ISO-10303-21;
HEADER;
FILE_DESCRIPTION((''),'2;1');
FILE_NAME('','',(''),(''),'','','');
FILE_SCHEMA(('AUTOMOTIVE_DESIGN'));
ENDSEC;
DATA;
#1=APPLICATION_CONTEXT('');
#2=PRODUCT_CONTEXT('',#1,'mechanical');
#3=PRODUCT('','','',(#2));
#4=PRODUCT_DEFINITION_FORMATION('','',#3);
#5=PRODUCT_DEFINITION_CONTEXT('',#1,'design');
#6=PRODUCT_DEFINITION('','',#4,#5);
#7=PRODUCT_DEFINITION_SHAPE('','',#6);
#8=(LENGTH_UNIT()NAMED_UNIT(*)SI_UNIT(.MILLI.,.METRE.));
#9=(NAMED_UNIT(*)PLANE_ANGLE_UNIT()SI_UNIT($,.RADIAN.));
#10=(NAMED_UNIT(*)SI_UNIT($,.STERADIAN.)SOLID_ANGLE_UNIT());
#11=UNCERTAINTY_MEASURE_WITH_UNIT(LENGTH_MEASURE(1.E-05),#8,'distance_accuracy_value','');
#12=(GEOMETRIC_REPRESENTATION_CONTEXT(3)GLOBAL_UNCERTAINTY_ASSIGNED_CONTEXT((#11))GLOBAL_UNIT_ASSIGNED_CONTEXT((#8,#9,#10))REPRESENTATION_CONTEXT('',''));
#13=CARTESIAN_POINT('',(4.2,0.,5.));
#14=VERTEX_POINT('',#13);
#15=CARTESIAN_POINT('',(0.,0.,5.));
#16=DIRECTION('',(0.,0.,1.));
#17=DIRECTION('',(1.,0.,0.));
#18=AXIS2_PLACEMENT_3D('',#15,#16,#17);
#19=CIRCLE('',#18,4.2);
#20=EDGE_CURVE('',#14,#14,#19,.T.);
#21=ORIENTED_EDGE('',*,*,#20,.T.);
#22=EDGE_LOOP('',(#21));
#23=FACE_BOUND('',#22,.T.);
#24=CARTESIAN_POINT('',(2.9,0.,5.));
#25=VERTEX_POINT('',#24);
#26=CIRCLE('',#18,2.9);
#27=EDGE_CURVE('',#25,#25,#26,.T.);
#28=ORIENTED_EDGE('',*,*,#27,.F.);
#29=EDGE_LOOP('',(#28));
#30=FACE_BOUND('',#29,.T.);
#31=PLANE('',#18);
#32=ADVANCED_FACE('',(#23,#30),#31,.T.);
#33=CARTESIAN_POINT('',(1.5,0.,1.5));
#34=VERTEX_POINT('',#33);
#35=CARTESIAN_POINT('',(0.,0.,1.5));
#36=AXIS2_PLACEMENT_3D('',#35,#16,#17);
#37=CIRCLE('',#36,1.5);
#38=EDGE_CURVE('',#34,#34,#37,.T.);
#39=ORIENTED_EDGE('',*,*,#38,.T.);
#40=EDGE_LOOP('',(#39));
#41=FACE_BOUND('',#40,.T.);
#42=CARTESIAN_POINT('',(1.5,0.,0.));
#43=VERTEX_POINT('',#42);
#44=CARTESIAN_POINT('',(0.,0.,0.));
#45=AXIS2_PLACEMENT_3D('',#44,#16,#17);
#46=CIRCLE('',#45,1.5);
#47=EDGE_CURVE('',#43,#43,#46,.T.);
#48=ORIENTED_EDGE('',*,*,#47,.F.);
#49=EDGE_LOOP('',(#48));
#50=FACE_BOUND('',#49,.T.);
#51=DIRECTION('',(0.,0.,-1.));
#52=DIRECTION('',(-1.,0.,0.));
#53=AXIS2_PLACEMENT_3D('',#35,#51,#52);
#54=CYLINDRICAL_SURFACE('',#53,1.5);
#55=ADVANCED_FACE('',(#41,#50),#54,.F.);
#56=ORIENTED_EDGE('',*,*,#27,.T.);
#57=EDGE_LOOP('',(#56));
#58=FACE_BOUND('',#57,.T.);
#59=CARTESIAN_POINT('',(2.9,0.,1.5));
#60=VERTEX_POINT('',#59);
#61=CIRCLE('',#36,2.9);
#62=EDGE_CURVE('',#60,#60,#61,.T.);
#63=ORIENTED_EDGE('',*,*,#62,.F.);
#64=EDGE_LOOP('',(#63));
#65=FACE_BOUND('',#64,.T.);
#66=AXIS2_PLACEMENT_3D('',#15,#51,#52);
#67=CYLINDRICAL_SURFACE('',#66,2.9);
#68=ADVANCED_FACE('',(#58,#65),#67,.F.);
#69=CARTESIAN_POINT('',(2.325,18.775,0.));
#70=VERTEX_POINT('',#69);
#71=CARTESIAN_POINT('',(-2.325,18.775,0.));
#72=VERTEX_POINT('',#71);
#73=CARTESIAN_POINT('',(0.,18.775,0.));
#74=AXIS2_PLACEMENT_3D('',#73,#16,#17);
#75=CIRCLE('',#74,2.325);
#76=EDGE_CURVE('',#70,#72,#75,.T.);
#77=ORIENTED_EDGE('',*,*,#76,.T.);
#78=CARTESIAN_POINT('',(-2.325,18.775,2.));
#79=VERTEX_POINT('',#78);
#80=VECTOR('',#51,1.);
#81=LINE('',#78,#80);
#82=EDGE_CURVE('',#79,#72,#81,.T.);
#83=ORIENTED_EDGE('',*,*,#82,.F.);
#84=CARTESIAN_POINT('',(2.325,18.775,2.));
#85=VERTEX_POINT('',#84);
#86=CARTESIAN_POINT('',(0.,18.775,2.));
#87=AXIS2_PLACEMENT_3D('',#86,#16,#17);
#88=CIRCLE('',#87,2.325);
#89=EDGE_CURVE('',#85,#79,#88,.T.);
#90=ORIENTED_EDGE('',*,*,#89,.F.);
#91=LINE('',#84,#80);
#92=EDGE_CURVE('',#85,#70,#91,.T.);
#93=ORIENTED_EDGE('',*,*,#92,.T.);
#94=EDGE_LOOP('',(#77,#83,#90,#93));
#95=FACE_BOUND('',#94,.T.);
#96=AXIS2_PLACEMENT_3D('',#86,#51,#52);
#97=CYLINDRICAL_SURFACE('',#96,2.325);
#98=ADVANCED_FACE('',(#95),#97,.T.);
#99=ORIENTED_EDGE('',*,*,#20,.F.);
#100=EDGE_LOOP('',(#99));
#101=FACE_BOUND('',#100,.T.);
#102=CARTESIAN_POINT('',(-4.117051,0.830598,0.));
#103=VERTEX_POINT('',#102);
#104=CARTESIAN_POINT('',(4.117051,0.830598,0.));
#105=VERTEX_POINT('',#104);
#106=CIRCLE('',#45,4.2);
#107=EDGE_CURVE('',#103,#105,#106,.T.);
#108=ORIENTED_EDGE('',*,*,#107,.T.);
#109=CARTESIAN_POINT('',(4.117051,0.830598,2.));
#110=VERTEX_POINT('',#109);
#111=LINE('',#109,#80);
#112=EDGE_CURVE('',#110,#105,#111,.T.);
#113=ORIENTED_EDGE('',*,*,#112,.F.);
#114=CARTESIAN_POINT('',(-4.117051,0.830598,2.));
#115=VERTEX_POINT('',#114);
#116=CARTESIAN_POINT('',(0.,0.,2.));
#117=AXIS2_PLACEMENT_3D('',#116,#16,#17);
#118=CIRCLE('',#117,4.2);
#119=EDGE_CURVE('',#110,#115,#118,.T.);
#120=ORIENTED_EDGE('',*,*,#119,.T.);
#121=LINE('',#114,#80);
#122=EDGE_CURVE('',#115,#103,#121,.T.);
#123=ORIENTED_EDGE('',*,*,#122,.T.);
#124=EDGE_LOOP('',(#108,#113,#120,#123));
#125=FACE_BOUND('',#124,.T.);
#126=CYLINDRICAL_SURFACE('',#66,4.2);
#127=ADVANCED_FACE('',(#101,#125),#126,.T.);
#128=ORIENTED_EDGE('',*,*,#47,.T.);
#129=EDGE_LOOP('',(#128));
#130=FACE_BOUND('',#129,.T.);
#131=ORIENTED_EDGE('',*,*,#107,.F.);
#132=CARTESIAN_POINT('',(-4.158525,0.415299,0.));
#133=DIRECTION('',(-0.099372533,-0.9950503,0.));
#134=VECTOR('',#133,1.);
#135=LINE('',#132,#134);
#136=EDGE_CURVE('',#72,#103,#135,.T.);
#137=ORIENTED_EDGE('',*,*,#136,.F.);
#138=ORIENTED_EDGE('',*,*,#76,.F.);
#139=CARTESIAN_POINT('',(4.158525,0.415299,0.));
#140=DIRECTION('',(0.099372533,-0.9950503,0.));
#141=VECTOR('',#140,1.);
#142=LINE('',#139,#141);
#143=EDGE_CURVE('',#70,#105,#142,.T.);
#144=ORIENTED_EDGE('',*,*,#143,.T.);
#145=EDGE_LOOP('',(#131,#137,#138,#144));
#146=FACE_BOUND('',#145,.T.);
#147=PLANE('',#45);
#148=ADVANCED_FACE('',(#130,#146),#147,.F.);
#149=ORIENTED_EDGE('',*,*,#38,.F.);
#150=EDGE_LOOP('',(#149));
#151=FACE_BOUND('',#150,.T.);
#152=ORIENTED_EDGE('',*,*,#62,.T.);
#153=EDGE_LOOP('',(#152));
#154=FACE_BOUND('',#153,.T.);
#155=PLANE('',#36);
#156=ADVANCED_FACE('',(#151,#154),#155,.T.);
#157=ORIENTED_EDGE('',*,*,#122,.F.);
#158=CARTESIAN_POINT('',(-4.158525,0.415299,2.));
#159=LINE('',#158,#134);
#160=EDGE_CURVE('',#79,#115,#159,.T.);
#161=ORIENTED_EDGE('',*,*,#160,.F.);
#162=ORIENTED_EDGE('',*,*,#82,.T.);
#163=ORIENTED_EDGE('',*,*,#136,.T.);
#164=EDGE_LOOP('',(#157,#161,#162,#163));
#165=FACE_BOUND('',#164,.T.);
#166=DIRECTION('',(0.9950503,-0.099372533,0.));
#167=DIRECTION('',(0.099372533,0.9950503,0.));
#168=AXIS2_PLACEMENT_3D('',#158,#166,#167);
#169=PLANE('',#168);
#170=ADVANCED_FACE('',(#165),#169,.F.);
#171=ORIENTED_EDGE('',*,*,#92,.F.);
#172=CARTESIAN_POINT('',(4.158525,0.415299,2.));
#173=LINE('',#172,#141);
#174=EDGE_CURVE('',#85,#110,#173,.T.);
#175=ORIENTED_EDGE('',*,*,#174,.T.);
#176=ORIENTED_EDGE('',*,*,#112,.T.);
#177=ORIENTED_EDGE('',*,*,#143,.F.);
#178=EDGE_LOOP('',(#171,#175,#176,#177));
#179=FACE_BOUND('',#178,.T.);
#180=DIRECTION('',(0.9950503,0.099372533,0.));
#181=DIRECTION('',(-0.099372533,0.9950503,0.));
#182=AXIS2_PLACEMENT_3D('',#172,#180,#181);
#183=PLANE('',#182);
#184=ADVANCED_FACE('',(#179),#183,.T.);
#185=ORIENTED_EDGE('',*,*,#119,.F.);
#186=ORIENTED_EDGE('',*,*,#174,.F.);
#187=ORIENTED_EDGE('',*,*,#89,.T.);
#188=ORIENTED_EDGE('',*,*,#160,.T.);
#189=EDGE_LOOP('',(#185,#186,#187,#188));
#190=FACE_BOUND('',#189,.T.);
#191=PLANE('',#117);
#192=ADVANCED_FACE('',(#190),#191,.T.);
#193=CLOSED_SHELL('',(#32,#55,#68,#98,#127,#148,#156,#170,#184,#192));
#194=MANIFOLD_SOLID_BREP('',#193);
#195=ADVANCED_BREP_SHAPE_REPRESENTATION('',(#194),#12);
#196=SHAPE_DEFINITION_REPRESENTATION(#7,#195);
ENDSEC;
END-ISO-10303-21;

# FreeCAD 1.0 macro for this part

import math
import FreeCAD as App
import Part
import Sketcher
Q = App.Units.Quantity

doc = App.newDocument("Part")
params = doc.addObject("Spreadsheet::Sheet", "Params")
for row, (alias, value) in enumerate([
    ("sketch1_radius", "4.2 mm"),
    ("pad1_length", "2 mm"),
    ("sketch2_diameter", "8.4 mm"),
    ("sketch2_diameter2", "5.8 mm"),
    ("pad2_length", "5 mm"),
    ("sketch3_diameter", "3 mm"),
    ("sketch3_diameter2", "5.8 mm"),
    ("pad3_length", "1.5 mm"),
], start=1):
    params.set(f"A{row}", alias)
    params.set(f"B{row}", "=" + value)
    params.setAlias(f"B{row}", alias)

body = doc.addObject("PartDesign::Body", "Body")

sketch1 = doc.addObject("Sketcher::SketchObject", "Sketch")
body.addObject(sketch1)
sketch1.AttachmentSupport = (doc.XY_Plane, [""])
sketch1.MapMode = "FlatFace"
sketch1.addGeometry([
    Part.LineSegment(App.Vector(4.1, 0.8, 0), App.Vector(2.3, 18.8, 0)),
    Part.ArcOfCircle(Part.Circle(App.Vector(0, 18.8, 0), App.Vector(0, 0, 1), 2.3), math.radians(0), math.radians(180)),
    Part.LineSegment(App.Vector(-2.3, 18.8, 0), App.Vector(-4.1, 0.8, 0)),
    Part.ArcOfCircle(Part.Circle(App.Vector(0, 0, 0), App.Vector(0, 0, 1), 4.2), math.radians(11), math.radians(169)),
], False)
sketch1.addConstraint([
    Sketcher.Constraint("Coincident", 0, 2, 1, 1),
    Sketcher.Constraint("Coincident", 1, 2, 2, 1),
    Sketcher.Constraint("Coincident", 2, 2, 3, 2),
    Sketcher.Constraint("Coincident", 3, 1, 0, 1),
    Sketcher.Constraint("Coincident", 3, 3, -1, 1),
    Sketcher.Constraint("Symmetric", 0, 2, 1, 2, -2),
    Sketcher.Constraint("Horizontal", 1, 3, 0, 2),
    Sketcher.Constraint("Horizontal", 2, 2, 3, 1),
    Sketcher.Constraint("Radius", 3, Q("4.2 mm")),
    Sketcher.Constraint("Radius", 1, Q("2.325 mm")),
    Sketcher.Constraint("DistanceY", -1, 1, 1, 3, Q("18.775 mm")),
    Sketcher.Constraint("DistanceX", 2, 2, 3, 1, Q("8.234102 mm")),
])
sketch1.setExpression("Constraints[8]", "Params.sketch1_radius")
pad1 = doc.addObject("PartDesign::Pad", "Pad")
body.addObject(pad1)
pad1.Profile = sketch1
pad1.setExpression("Length", "Params.pad1_length")

sketch2 = doc.addObject("Sketcher::SketchObject", "Sketch001")
body.addObject(sketch2)
sketch2.AttachmentSupport = (doc.XY_Plane, [""])
sketch2.MapMode = "FlatFace"
sketch2.addGeometry([
    Part.Circle(App.Vector(0, 0, 0), App.Vector(0, 0, 1), 4.2),
    Part.Circle(App.Vector(0, 0, 0), App.Vector(0, 0, 1), 2.9),
], False)
sketch2.addConstraint([
    Sketcher.Constraint("Coincident", 0, 3, -1, 1),
    Sketcher.Constraint("Coincident", 1, 3, -1, 1),
    Sketcher.Constraint("Diameter", 0, Q("8.4 mm")),
    Sketcher.Constraint("Diameter", 1, Q("5.8 mm")),
])
sketch2.setExpression("Constraints[2]", "Params.sketch2_diameter")
sketch2.setExpression("Constraints[3]", "Params.sketch2_diameter2")
pad2 = doc.addObject("PartDesign::Pad", "Pad001")
body.addObject(pad2)
pad2.Profile = sketch2
pad2.setExpression("Length", "Params.pad2_length")

sketch3 = doc.addObject("Sketcher::SketchObject", "Sketch002")
body.addObject(sketch3)
sketch3.AttachmentSupport = (doc.XY_Plane, [""])
sketch3.MapMode = "FlatFace"
sketch3.addGeometry([
    Part.Circle(App.Vector(0, 0, 0), App.Vector(0, 0, 1), 2.9),
    Part.Circle(App.Vector(0, 0, 0), App.Vector(0, 0, 1), 1.5),
], False)
sketch3.addConstraint([
    Sketcher.Constraint("Coincident", 0, 3, -1, 1),
    Sketcher.Constraint("Coincident", 1, 3, -1, 1),
    Sketcher.Constraint("Diameter", 1, Q("3 mm")),
    Sketcher.Constraint("Diameter", 0, Q("5.8 mm")),
])
sketch3.setExpression("Constraints[2]", "Params.sketch3_diameter")
sketch3.setExpression("Constraints[3]", "Params.sketch3_diameter2")
pad3 = doc.addObject("PartDesign::Pad", "Pad002")
body.addObject(pad3)
pad3.Profile = sketch3
pad3.setExpression("Length", "Params.pad3_length")

doc.recompute()
